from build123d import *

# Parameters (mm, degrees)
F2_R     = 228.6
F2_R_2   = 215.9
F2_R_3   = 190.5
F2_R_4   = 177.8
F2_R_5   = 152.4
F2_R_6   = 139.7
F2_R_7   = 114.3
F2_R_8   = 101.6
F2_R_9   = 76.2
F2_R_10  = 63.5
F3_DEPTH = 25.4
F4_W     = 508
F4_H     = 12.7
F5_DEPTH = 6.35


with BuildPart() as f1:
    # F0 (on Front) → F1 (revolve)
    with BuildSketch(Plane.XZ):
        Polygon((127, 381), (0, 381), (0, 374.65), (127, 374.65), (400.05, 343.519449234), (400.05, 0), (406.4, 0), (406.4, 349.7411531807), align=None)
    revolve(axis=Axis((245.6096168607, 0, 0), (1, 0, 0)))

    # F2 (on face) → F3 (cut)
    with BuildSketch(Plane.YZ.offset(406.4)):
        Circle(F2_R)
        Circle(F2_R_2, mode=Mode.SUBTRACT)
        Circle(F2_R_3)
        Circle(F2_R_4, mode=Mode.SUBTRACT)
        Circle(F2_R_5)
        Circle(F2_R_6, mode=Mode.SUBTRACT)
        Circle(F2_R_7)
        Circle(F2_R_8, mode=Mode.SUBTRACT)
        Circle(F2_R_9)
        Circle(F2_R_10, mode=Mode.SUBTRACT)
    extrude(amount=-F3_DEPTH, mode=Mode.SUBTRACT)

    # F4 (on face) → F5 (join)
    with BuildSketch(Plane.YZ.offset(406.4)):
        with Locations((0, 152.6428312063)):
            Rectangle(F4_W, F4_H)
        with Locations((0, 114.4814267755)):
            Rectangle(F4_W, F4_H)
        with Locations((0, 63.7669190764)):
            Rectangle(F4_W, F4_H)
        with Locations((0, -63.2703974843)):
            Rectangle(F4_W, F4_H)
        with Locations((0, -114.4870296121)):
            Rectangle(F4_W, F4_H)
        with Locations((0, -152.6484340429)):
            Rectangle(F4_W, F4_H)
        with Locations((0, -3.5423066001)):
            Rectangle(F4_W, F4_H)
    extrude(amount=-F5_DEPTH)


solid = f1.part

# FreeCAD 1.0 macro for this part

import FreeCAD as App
import Part
import Sketcher
Q = App.Units.Quantity

doc = App.newDocument("Part")
body = doc.addObject("PartDesign::Body", "Body")
body.AllowCompound = True

# Sketch on XZ plane
sketch1 = body.newObject("Sketcher::SketchObject", "Sketch")
sketch1.AttachmentSupport = (doc.getObject("XZ_Plane"), [""])
sketch1.MapMode = "FlatFace"
sketch1.addGeometry(Part.LineSegment(App.Vector(127, 381, 0), App.Vector(0, 381, 0)), False)
sketch1.addGeometry(Part.LineSegment(App.Vector(0, 381, 0), App.Vector(0, 374.65, 0)), False)
sketch1.addGeometry(Part.LineSegment(App.Vector(0, 374.65, 0), App.Vector(127, 374.65, 0)), False)
sketch1.addGeometry(Part.LineSegment(App.Vector(127, 374.65, 0), App.Vector(400.05, 343.519449, 0)), False)
sketch1.addGeometry(Part.LineSegment(App.Vector(400.05, 343.519449, 0), App.Vector(400.05, 0, 0)), False)
sketch1.addGeometry(Part.LineSegment(App.Vector(400.05, 0, 0), App.Vector(406.4, 0, 0)), False)
sketch1.addGeometry(Part.LineSegment(App.Vector(406.4, 0, 0), App.Vector(406.4, 349.741153, 0)), False)
sketch1.addGeometry(Part.LineSegment(App.Vector(406.4, 349.741153, 0), App.Vector(127, 381, 0)), False)
sketch1.addConstraint(Sketcher.Constraint("Coincident", 0, 2, 1, 1))
sketch1.addConstraint(Sketcher.Constraint("Coincident", 1, 2, 2, 1))
sketch1.addConstraint(Sketcher.Constraint("Coincident", 2, 2, 3, 1))
sketch1.addConstraint(Sketcher.Constraint("Coincident", 3, 2, 4, 1))
sketch1.addConstraint(Sketcher.Constraint("Coincident", 4, 2, 5, 1))
sketch1.addConstraint(Sketcher.Constraint("Coincident", 5, 2, 6, 1))
sketch1.addConstraint(Sketcher.Constraint("Coincident", 6, 2, 7, 1))
sketch1.addConstraint(Sketcher.Constraint("Coincident", 7, 2, 0, 1))
sketch1.addConstraint(Sketcher.Constraint("Horizontal", 0))
sketch1.addConstraint(Sketcher.Constraint("Vertical", 1))
sketch1.addConstraint(Sketcher.Constraint("Horizontal", 2))
sketch1.addConstraint(Sketcher.Constraint("Vertical", 4))
sketch1.addConstraint(Sketcher.Constraint("Horizontal", 5))
sketch1.addConstraint(Sketcher.Constraint("Vertical", 6))
sketch1.addConstraint(Sketcher.Constraint("PointOnObject", 0, 2, -2))
sketch1.addConstraint(Sketcher.Constraint("PointOnObject", 4, 2, -1))
sketch1.addConstraint(Sketcher.Constraint("Vertical", 2, 2, 7, 2))
sketch1.addConstraint(Sketcher.Constraint("Equal", 5, 1))
sketch1.addConstraint(Sketcher.Constraint("DistanceX", 0, 2, 0, 1, Q("5 in")))
sketch1.addConstraint(Sketcher.Constraint("DistanceY", -1, 1, 0, 2, Q("15 in")))
sketch1.addConstraint(Sketcher.Constraint("DistanceX", -1, 1, 5, 2, Q("16 in")))
sketch1.addConstraint(Sketcher.Constraint("DistanceX", 5, 1, 5, 2, Q("0.25 in")))
sketch1.addConstraint(Sketcher.Constraint("DistanceY", 4, 2, 4, 1, 343.519449))
sketch1.addConstraint(Sketcher.Constraint("Distance", 7, 281.143158))
revolution = body.newObject("PartDesign::Revolution", "Revolution")
revolution.Profile = sketch1
revolution.ReferenceAxis = (sketch1, ["H_Axis"])
revolution.Angle = 360

# Sketch on YZ plane
sketch2 = body.newObject("Sketcher::SketchObject", "Sketch001")
sketch2.AttachmentSupport = (doc.getObject("YZ_Plane"), [""])
sketch2.MapMode = "FlatFace"
sketch2.AttachmentOffset = App.Placement(App.Vector(0, 0, 16 * 25.4), App.Rotation())
sketch2.addGeometry(Part.Circle(App.Vector(0, 0, 0), App.Vector(0, 0, 1), 228.6), False)
sketch2.addGeometry(Part.Circle(App.Vector(0, 0, 0), App.Vector(0, 0, 1), 215.9), False)
sketch2.addGeometry(Part.Circle(App.Vector(0, 0, 0), App.Vector(0, 0, 1), 190.5), False)
sketch2.addGeometry(Part.Circle(App.Vector(0, 0, 0), App.Vector(0, 0, 1), 177.8), False)
sketch2.addGeometry(Part.Circle(App.Vector(0, 0, 0), App.Vector(0, 0, 1), 152.4), False)
sketch2.addGeometry(Part.Circle(App.Vector(0, 0, 0), App.Vector(0, 0, 1), 139.7), False)
sketch2.addGeometry(Part.Circle(App.Vector(0, 0, 0), App.Vector(0, 0, 1), 114.3), False)
sketch2.addGeometry(Part.Circle(App.Vector(0, 0, 0), App.Vector(0, 0, 1), 101.6), False)
sketch2.addGeometry(Part.Circle(App.Vector(0, 0, 0), App.Vector(0, 0, 1), 76.2), False)
sketch2.addGeometry(Part.Circle(App.Vector(0, 0, 0), App.Vector(0, 0, 1), 63.5), False)
sketch2.addConstraint(Sketcher.Constraint("Coincident", 0, 3, -1, 1))
sketch2.addConstraint(Sketcher.Constraint("Coincident", 1, 3, -1, 1))
sketch2.addConstraint(Sketcher.Constraint("Coincident", 2, 3, -1, 1))
sketch2.addConstraint(Sketcher.Constraint("Coincident", 3, 3, -1, 1))
sketch2.addConstraint(Sketcher.Constraint("Coincident", 4, 3, -1, 1))
sketch2.addConstraint(Sketcher.Constraint("Coincident", 5, 3, -1, 1))
sketch2.addConstraint(Sketcher.Constraint("Coincident", 6, 3, -1, 1))
sketch2.addConstraint(Sketcher.Constraint("Coincident", 7, 3, -1, 1))
sketch2.addConstraint(Sketcher.Constraint("Coincident", 8, 3, -1, 1))
sketch2.addConstraint(Sketcher.Constraint("Coincident", 9, 3, -1, 1))
sketch2.addConstraint(Sketcher.Constraint("Diameter", 0, Q("18 in")))
sketch2.addConstraint(Sketcher.Constraint("Diameter", 1, Q("17 in")))
sketch2.addConstraint(Sketcher.Constraint("Diameter", 2, Q("15 in")))
sketch2.addConstraint(Sketcher.Constraint("Diameter", 3, Q("14 in")))
sketch2.addConstraint(Sketcher.Constraint("Diameter", 4, Q("12 in")))
sketch2.addConstraint(Sketcher.Constraint("Diameter", 5, Q("11 in")))
sketch2.addConstraint(Sketcher.Constraint("Diameter", 6, Q("9 in")))
sketch2.addConstraint(Sketcher.Constraint("Diameter", 7, Q("8 in")))
sketch2.addConstraint(Sketcher.Constraint("Diameter", 8, Q("6 in")))
sketch2.addConstraint(Sketcher.Constraint("Diameter", 9, Q("5 in")))
pocket1 = body.newObject("PartDesign::Pocket", "Pocket")
pocket1.Profile = sketch2
pocket1.Length = Q("1 in")

# Sketch on YZ plane
sketch3 = body.newObject("Sketcher::SketchObject", "Sketch002")
sketch3.AttachmentSupport = (doc.getObject("YZ_Plane"), [""])
sketch3.MapMode = "FlatFace"
sketch3.AttachmentOffset = App.Placement(App.Vector(0, 0, 16 * 25.4), App.Rotation())
sketch3.addGeometry(Part.LineSegment(App.Vector(-254, 158.992831, 0), App.Vector(-254, 146.292831, 0)), False)
sketch3.addGeometry(Part.LineSegment(App.Vector(-254, 146.292831, 0), App.Vector(254, 146.292831, 0)), False)
sketch3.addGeometry(Part.LineSegment(App.Vector(254, 146.292831, 0), App.Vector(254, 158.992831, 0)), False)
sketch3.addGeometry(Part.LineSegment(App.Vector(254, 158.992831, 0), App.Vector(-254, 158.992831, 0)), False)
sketch3.addGeometry(Part.LineSegment(App.Vector(-254, 120.831427, 0), App.Vector(-254, 108.131427, 0)), False)
sketch3.addGeometry(Part.LineSegment(App.Vector(-254, 108.131427, 0), App.Vector(254, 108.131427, 0)), False)
sketch3.addGeometry(Part.LineSegment(App.Vector(254, 108.131427, 0), App.Vector(254, 120.831427, 0)), False)
sketch3.addGeometry(Part.LineSegment(App.Vector(254, 120.831427, 0), App.Vector(-254, 120.831427, 0)), False)
sketch3.addGeometry(Part.LineSegment(App.Vector(-254, 70.116919, 0), App.Vector(-254, 57.416919, 0)), False)
sketch3.addGeometry(Part.LineSegment(App.Vector(-254, 57.416919, 0), App.Vector(254, 57.416919, 0)), False)
sketch3.addGeometry(Part.LineSegment(App.Vector(254, 57.416919, 0), App.Vector(254, 70.116919, 0)), False)
sketch3.addGeometry(Part.LineSegment(App.Vector(254, 70.116919, 0), App.Vector(-254, 70.116919, 0)), False)
sketch3.addGeometry(Part.LineSegment(App.Vector(-254, -56.920397, 0), App.Vector(-254, -69.620397, 0)), False)
sketch3.addGeometry(Part.LineSegment(App.Vector(-254, -69.620397, 0), App.Vector(254, -69.620397, 0)), False)
sketch3.addGeometry(Part.LineSegment(App.Vector(254, -69.620397, 0), App.Vector(254, -56.920397, 0)), False)
sketch3.addGeometry(Part.LineSegment(App.Vector(254, -56.920397, 0), App.Vector(-254, -56.920397, 0)), False)
sketch3.addGeometry(Part.LineSegment(App.Vector(-254, -108.13703, 0), App.Vector(-254, -120.83703, 0)), False)
sketch3.addGeometry(Part.LineSegment(App.Vector(-254, -120.83703, 0), App.Vector(254, -120.83703, 0)), False)
sketch3.addGeometry(Part.LineSegment(App.Vector(254, -120.83703, 0), App.Vector(254, -108.13703, 0)), False)
sketch3.addGeometry(Part.LineSegment(App.Vector(254, -108.13703, 0), App.Vector(-254, -108.13703, 0)), False)
sketch3.addGeometry(Part.LineSegment(App.Vector(-254, -146.298434, 0), App.Vector(-254, -158.998434, 0)), False)
sketch3.addGeometry(Part.LineSegment(App.Vector(-254, -158.998434, 0), App.Vector(254, -158.998434, 0)), False)
sketch3.addGeometry(Part.LineSegment(App.Vector(254, -158.998434, 0), App.Vector(254, -146.298434, 0)), False)
sketch3.addGeometry(Part.LineSegment(App.Vector(254, -146.298434, 0), App.Vector(-254, -146.298434, 0)), False)
sketch3.addGeometry(Part.LineSegment(App.Vector(-254, 2.807693, 0), App.Vector(-254, -9.892307, 0)), False)
sketch3.addGeometry(Part.LineSegment(App.Vector(-254, -9.892307, 0), App.Vector(254, -9.892307, 0)), False)
sketch3.addGeometry(Part.LineSegment(App.Vector(254, -9.892307, 0), App.Vector(254, 2.807693, 0)), False)
sketch3.addGeometry(Part.LineSegment(App.Vector(254, 2.807693, 0), App.Vector(-254, 2.807693, 0)), False)
sketch3.addConstraint(Sketcher.Constraint("Coincident", 0, 2, 1, 1))
sketch3.addConstraint(Sketcher.Constraint("Coincident", 1, 2, 2, 1))
sketch3.addConstraint(Sketcher.Constraint("Coincident", 2, 2, 3, 1))
sketch3.addConstraint(Sketcher.Constraint("Coincident", 3, 2, 0, 1))
sketch3.addConstraint(Sketcher.Constraint("Coincident", 4, 2, 5, 1))
sketch3.addConstraint(Sketcher.Constraint("Coincident", 5, 2, 6, 1))
sketch3.addConstraint(Sketcher.Constraint("Coincident", 6, 2, 7, 1))
sketch3.addConstraint(Sketcher.Constraint("Coincident", 7, 2, 4, 1))
sketch3.addConstraint(Sketcher.Constraint("Coincident", 8, 2, 9, 1))
sketch3.addConstraint(Sketcher.Constraint("Coincident", 9, 2, 10, 1))
sketch3.addConstraint(Sketcher.Constraint("Coincident", 10, 2, 11, 1))
sketch3.addConstraint(Sketcher.Constraint("Coincident", 11, 2, 8, 1))
sketch3.addConstraint(Sketcher.Constraint("Coincident", 12, 2, 13, 1))
sketch3.addConstraint(Sketcher.Constraint("Coincident", 13, 2, 14, 1))
sketch3.addConstraint(Sketcher.Constraint("Coincident", 14, 2, 15, 1))
sketch3.addConstraint(Sketcher.Constraint("Coincident", 15, 2, 12, 1))
sketch3.addConstraint(Sketcher.Constraint("Coincident", 16, 2, 17, 1))
sketch3.addConstraint(Sketcher.Constraint("Coincident", 17, 2, 18, 1))
sketch3.addConstraint(Sketcher.Constraint("Coincident", 18, 2, 19, 1))
sketch3.addConstraint(Sketcher.Constraint("Coincident", 19, 2, 16, 1))
sketch3.addConstraint(Sketcher.Constraint("Coincident", 20, 2, 21, 1))
sketch3.addConstraint(Sketcher.Constraint("Coincident", 21, 2, 22, 1))
sketch3.addConstraint(Sketcher.Constraint("Coincident", 22, 2, 23, 1))
sketch3.addConstraint(Sketcher.Constraint("Coincident", 23, 2, 20, 1))
sketch3.addConstraint(Sketcher.Constraint("Coincident", 24, 2, 25, 1))
sketch3.addConstraint(Sketcher.Constraint("Coincident", 25, 2, 26, 1))
sketch3.addConstraint(Sketcher.Constraint("Coincident", 26, 2, 27, 1))
sketch3.addConstraint(Sketcher.Constraint("Coincident", 27, 2, 24, 1))
sketch3.addConstraint(Sketcher.Constraint("Vertical", 0))
sketch3.addConstraint(Sketcher.Constraint("Horizontal", 1))
sketch3.addConstraint(Sketcher.Constraint("Vertical", 2))
sketch3.addConstraint(Sketcher.Constraint("Horizontal", 3))
sketch3.addConstraint(Sketcher.Constraint("Vertical", 4))
sketch3.addConstraint(Sketcher.Constraint("Horizontal", 5))
sketch3.addConstraint(Sketcher.Constraint("Vertical", 6))
sketch3.addConstraint(Sketcher.Constraint("Horizontal", 7))
sketch3.addConstraint(Sketcher.Constraint("Vertical", 8))
sketch3.addConstraint(Sketcher.Constraint("Horizontal", 9))
sketch3.addConstraint(Sketcher.Constraint("Vertical", 10))
sketch3.addConstraint(Sketcher.Constraint("Horizontal", 11))
sketch3.addConstraint(Sketcher.Constraint("Vertical", 12))
sketch3.addConstraint(Sketcher.Constraint("Horizontal", 13))
sketch3.addConstraint(Sketcher.Constraint("Vertical", 14))
sketch3.addConstraint(Sketcher.Constraint("Horizontal", 15))
sketch3.addConstraint(Sketcher.Constraint("Vertical", 16))
sketch3.addConstraint(Sketcher.Constraint("Horizontal", 17))
sketch3.addConstraint(Sketcher.Constraint("Vertical", 18))
sketch3.addConstraint(Sketcher.Constraint("Horizontal", 19))
sketch3.addConstraint(Sketcher.Constraint("Vertical", 20))
sketch3.addConstraint(Sketcher.Constraint("Horizontal", 21))
sketch3.addConstraint(Sketcher.Constraint("Vertical", 22))
sketch3.addConstraint(Sketcher.Constraint("Horizontal", 23))
sketch3.addConstraint(Sketcher.Constraint("Vertical", 24))
sketch3.addConstraint(Sketcher.Constraint("Horizontal", 25))
sketch3.addConstraint(Sketcher.Constraint("Vertical", 26))
sketch3.addConstraint(Sketcher.Constraint("Horizontal", 27))
sketch3.addConstraint(Sketcher.Constraint("Vertical", 3, 2, 4, 2))
sketch3.addConstraint(Sketcher.Constraint("Vertical", 2, 2, 5, 2))
sketch3.addConstraint(Sketcher.Constraint("Vertical", 7, 2, 8, 2))
sketch3.addConstraint(Sketcher.Constraint("Vertical", 6, 2, 9, 2))
sketch3.addConstraint(Sketcher.Constraint("Vertical", 11, 2, 12, 2))
sketch3.addConstraint(Sketcher.Constraint("Vertical", 10, 2, 13, 2))
sketch3.addConstraint(Sketcher.Constraint("Vertical", 15, 2, 16, 2))
sketch3.addConstraint(Sketcher.Constraint("Vertical", 14, 2, 17, 2))
sketch3.addConstraint(Sketcher.Constraint("Vertical", 19, 2, 20, 2))
sketch3.addConstraint(Sketcher.Constraint("Vertical", 18, 2, 21, 2))
sketch3.addConstraint(Sketcher.Constraint("Vertical", 23, 2, 24, 2))
sketch3.addConstraint(Sketcher.Constraint("Vertical", 22, 2, 25, 2))
sketch3.addConstraint(Sketcher.Constraint("Equal", 2, 4))
sketch3.addConstraint(Sketcher.Constraint("Equal", 6, 8))
sketch3.addConstraint(Sketcher.Constraint("Equal", 10, 12))
sketch3.addConstraint(Sketcher.Constraint("Equal", 14, 16))
sketch3.addConstraint(Sketcher.Constraint("Equal", 18, 20))
sketch3.addConstraint(Sketcher.Constraint("Equal", 22, 24))
sketch3.addConstraint(Sketcher.Constraint("DistanceX", 1, 1, 1, 2, Q("20 in")))
sketch3.addConstraint(Sketcher.Constraint("DistanceY", 0, 2, 0, 1, Q("0.5 in")))
sketch3.addConstraint(Sketcher.Constraint("DistanceX", 0, 2, -1, 1, Q("10 in")))
sketch3.addConstraint(Sketcher.Constraint("DistanceY", -1, 1, 0, 2, 146.292831))
sketch3.addConstraint(Sketcher.Constraint("DistanceY", -1, 1, 8, 2, 57.416919))
sketch3.addConstraint(Sketcher.Constraint("DistanceY", 16, 2, -1, 1, 120.83703))
sketch3.addConstraint(Sketcher.Constraint("DistanceY", 12, 2, 0, 2, 215.913229))
sketch3.addConstraint(Sketcher.Constraint("DistanceY", 15, 2, 24, 2, 47.028091))
sketch3.addConstraint(Sketcher.Constraint("DistanceY", -1, 1, 4, 2, 108.131427))
sketch3.addConstraint(Sketcher.Constraint("DistanceY", 20, 2, -1, 1, 158.998434))
pad1 = body.newObject("PartDesign::Pad", "Pad")
pad1.Profile = sketch3
pad1.Length = Q("0.25 in")
pad1.Reversed = True

doc.recompute()
